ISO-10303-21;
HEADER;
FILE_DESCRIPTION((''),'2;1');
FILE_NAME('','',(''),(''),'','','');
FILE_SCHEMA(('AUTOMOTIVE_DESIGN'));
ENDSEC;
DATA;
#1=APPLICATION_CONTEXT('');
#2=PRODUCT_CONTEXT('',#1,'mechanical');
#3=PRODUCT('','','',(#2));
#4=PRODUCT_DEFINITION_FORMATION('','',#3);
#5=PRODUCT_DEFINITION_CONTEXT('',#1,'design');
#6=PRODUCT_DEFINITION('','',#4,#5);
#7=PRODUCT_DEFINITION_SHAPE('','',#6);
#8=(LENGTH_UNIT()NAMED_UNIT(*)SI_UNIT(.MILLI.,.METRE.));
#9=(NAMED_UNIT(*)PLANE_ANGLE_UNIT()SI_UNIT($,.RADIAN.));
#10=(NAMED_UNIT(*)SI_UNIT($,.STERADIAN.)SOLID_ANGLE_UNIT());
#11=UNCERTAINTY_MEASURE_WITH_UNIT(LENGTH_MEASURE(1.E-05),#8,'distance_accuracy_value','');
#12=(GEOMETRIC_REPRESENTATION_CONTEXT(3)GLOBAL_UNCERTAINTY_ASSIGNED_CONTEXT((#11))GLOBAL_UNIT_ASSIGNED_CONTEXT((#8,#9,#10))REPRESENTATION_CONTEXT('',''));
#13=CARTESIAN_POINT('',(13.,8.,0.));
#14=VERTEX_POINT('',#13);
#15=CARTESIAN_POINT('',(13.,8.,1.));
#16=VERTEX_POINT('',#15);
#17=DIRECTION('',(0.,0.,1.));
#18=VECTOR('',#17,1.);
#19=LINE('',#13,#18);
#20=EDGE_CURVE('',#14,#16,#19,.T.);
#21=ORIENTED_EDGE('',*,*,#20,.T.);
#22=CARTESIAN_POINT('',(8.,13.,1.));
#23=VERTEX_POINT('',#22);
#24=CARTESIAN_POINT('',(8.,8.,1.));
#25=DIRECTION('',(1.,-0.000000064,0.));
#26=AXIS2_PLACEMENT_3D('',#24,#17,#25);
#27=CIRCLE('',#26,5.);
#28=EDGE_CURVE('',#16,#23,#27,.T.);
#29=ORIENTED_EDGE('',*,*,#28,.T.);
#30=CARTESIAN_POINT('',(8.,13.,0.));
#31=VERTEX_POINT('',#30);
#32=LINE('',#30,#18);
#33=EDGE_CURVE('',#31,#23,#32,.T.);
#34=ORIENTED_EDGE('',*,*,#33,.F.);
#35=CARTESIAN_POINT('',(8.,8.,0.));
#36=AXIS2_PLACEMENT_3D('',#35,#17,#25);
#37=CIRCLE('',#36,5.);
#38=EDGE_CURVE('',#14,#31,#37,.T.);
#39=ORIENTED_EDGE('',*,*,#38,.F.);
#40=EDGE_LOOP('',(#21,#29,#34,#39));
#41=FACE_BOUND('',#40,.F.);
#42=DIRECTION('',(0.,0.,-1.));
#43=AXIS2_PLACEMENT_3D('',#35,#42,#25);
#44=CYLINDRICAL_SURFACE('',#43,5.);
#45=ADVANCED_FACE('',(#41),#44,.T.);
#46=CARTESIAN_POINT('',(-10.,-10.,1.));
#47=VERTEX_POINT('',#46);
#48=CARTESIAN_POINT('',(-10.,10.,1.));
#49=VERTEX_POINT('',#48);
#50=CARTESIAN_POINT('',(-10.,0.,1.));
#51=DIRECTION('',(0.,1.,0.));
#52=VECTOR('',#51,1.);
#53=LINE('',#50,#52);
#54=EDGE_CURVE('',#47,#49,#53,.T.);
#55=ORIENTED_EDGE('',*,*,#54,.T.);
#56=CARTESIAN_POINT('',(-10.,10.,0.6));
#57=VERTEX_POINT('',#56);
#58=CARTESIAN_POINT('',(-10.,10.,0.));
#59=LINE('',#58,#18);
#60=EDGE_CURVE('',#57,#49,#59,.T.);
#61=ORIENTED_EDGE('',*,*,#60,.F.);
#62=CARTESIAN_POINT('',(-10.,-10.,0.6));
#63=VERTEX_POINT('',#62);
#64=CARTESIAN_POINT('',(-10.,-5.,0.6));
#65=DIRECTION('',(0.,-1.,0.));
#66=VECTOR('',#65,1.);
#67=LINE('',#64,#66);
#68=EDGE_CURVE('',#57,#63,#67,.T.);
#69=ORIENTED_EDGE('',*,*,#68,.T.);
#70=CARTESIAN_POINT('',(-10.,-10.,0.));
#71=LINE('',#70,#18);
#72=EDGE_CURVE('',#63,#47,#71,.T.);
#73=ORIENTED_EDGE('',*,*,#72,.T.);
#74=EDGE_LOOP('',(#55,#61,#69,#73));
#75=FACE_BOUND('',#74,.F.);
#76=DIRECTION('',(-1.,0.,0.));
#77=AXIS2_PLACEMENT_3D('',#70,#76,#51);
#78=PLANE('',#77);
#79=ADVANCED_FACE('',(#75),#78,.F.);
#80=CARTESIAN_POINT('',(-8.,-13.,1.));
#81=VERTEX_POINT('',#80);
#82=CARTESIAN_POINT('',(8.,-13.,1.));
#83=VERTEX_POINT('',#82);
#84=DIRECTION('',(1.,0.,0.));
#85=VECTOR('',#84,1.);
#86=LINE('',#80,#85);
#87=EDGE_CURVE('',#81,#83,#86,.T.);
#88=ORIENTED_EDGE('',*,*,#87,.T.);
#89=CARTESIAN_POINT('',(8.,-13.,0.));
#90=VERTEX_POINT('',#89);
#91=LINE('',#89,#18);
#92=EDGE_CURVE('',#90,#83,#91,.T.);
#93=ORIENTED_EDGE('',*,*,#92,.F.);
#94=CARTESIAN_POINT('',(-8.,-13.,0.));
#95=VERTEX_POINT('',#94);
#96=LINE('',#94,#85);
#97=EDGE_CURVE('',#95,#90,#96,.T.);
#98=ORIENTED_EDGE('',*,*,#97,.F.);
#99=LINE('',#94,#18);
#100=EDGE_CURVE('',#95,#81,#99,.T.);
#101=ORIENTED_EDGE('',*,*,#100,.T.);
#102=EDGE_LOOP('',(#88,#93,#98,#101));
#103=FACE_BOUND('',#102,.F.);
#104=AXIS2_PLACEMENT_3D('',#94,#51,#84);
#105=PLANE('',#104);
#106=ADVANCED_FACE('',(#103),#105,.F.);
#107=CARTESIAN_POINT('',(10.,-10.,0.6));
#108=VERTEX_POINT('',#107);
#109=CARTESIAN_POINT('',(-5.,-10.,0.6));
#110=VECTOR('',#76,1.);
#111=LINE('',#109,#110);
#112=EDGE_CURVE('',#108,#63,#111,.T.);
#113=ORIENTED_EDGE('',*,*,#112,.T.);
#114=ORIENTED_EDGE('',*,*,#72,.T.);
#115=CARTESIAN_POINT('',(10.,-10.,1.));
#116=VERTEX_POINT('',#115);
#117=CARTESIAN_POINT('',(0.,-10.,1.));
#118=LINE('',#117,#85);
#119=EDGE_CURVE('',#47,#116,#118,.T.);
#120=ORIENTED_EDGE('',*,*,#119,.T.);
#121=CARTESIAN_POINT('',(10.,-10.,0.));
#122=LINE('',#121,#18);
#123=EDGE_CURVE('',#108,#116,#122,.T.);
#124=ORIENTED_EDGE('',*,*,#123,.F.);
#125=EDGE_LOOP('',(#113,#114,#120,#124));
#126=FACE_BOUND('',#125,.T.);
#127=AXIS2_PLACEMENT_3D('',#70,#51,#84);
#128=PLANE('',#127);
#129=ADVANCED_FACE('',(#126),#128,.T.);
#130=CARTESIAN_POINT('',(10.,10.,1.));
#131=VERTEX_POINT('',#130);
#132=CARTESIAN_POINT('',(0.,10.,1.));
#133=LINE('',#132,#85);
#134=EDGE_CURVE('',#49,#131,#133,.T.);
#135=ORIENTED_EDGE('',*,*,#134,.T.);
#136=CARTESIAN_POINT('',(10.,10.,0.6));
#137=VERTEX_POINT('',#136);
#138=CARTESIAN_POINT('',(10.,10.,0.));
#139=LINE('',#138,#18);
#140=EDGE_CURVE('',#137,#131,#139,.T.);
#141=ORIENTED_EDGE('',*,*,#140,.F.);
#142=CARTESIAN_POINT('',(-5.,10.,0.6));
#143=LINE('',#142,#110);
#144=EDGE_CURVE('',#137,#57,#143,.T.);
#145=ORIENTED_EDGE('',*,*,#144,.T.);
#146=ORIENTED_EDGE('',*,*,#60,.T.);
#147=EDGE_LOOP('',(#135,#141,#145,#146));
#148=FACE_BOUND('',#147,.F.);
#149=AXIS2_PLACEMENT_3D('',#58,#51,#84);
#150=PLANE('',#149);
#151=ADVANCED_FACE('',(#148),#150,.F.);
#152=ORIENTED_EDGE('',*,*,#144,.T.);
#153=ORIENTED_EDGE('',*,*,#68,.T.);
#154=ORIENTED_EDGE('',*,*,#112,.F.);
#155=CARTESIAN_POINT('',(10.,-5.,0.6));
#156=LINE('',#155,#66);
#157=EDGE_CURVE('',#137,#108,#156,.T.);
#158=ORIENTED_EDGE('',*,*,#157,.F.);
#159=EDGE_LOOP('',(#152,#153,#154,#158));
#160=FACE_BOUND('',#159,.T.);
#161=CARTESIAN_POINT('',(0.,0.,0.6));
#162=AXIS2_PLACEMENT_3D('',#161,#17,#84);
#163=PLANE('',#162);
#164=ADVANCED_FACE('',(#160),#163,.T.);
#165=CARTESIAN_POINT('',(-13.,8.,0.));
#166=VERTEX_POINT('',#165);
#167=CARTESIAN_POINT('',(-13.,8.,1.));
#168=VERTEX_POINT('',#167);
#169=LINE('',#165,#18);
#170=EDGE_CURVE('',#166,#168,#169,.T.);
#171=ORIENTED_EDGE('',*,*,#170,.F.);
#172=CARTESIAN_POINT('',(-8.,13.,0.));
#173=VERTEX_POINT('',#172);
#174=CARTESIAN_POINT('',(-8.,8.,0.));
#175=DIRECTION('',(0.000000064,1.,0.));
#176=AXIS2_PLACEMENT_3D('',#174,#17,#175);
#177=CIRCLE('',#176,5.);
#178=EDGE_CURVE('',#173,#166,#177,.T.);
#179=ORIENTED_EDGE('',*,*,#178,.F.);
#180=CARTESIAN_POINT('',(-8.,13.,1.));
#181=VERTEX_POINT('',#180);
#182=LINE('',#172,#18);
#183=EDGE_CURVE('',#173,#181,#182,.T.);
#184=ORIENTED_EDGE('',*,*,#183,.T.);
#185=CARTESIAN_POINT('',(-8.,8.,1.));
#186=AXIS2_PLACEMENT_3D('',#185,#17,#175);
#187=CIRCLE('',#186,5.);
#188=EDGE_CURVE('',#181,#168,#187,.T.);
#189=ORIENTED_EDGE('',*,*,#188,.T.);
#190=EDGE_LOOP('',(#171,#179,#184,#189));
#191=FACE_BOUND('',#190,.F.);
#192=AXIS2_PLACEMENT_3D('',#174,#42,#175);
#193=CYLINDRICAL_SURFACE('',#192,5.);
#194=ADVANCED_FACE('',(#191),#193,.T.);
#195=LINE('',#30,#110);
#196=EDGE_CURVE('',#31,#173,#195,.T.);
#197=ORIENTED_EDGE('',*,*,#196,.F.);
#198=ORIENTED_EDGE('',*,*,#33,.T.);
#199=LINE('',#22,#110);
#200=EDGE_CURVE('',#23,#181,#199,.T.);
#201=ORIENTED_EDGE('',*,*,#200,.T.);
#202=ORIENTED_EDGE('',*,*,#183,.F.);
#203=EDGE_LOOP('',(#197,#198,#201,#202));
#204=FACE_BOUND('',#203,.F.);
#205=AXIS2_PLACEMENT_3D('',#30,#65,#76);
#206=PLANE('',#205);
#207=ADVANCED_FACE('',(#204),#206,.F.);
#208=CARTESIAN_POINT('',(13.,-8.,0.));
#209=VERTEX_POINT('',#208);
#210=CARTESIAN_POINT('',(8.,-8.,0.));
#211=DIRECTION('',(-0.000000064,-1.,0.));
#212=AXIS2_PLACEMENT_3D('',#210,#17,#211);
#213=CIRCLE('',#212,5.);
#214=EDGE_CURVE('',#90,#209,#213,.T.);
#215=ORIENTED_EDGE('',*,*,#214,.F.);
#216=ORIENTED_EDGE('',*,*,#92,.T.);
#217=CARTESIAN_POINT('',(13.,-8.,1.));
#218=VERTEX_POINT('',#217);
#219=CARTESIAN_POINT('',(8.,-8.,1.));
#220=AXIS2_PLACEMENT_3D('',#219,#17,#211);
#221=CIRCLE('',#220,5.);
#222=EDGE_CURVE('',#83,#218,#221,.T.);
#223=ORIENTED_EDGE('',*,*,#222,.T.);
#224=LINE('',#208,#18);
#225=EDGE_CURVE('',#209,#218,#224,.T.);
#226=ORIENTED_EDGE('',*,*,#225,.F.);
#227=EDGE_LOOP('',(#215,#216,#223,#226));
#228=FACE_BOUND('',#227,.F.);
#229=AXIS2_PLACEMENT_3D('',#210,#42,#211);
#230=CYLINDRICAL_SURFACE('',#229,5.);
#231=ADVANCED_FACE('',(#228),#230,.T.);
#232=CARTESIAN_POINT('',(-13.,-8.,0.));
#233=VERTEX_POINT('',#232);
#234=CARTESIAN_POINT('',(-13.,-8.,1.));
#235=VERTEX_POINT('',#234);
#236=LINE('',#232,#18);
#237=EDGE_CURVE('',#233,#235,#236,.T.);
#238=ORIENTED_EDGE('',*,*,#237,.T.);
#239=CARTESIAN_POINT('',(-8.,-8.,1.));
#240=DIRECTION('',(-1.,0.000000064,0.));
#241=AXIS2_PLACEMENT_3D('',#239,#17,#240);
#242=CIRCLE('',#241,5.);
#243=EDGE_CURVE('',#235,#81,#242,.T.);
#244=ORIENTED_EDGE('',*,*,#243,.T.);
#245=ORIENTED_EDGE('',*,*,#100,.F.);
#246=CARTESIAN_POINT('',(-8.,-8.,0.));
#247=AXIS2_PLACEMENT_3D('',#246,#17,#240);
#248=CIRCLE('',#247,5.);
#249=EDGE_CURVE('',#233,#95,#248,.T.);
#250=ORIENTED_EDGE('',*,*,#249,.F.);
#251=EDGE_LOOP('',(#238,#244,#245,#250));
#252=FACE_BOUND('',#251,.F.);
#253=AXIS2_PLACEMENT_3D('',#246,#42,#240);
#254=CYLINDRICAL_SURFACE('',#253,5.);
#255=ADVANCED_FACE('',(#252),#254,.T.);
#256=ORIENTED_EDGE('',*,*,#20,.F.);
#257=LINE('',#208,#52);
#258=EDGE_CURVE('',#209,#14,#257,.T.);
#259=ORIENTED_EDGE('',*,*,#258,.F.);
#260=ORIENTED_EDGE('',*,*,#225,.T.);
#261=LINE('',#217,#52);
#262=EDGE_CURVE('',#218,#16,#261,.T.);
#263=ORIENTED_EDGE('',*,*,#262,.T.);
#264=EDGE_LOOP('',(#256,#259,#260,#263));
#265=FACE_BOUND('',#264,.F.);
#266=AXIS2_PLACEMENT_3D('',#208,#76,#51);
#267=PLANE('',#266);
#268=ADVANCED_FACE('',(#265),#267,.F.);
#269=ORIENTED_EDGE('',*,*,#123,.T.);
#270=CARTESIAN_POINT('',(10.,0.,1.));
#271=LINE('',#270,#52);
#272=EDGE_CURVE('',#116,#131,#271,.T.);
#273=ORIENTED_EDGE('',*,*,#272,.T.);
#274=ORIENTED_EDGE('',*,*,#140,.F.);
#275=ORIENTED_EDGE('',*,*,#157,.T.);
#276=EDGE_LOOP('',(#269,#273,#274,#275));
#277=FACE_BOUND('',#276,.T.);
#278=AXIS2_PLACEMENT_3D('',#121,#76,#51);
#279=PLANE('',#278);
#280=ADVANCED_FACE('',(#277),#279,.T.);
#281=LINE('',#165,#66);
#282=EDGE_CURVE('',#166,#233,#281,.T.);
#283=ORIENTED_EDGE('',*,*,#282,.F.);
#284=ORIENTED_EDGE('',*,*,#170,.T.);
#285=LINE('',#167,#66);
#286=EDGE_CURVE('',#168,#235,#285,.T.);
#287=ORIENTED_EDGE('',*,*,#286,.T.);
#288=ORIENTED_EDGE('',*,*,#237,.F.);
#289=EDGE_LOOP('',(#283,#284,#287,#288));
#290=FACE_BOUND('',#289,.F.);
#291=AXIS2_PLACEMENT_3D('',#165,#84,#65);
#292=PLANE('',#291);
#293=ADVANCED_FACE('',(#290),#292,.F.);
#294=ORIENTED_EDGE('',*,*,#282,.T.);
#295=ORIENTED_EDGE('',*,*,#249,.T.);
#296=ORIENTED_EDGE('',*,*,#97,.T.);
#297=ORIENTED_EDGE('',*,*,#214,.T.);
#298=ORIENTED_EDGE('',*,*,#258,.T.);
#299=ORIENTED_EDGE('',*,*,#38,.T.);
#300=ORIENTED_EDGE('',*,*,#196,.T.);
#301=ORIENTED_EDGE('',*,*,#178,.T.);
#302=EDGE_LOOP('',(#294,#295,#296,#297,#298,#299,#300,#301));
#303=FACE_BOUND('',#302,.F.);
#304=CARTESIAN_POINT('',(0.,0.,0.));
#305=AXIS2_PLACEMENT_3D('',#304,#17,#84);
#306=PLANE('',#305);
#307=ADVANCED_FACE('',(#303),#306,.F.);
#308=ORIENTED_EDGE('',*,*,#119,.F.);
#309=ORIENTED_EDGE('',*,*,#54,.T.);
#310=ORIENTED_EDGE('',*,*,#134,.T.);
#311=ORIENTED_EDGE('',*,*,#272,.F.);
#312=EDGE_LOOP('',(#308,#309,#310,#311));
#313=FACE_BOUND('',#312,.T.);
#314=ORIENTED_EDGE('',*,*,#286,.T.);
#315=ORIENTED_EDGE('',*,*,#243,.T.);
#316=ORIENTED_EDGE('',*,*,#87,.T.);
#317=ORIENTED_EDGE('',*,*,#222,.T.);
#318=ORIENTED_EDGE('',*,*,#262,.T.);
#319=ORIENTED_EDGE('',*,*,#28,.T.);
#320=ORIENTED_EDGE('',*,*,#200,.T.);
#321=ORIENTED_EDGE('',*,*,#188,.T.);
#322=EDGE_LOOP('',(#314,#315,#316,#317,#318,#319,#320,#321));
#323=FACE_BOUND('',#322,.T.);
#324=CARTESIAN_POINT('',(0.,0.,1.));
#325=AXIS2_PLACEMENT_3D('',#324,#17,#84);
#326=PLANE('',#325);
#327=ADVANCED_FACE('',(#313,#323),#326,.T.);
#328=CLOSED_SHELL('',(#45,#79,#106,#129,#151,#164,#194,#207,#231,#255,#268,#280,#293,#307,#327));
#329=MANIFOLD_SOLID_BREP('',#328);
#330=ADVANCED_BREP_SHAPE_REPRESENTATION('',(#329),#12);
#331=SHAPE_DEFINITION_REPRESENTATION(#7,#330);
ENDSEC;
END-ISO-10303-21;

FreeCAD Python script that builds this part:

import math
import FreeCAD as App
import Part
import Sketcher


def add_polygon(sketch, points):
    """Adds a closed chain of lines whose ends are joined by coincident constraints."""
    first, n = sketch.GeometryCount, len(points)
    for a, b in zip(points, points[1:] + points[:1]):
        sketch.addGeometry(Part.LineSegment(App.Vector(*a, 0), App.Vector(*b, 0)), False)
    for i in range(n):
        sketch.addConstraint(Sketcher.Constraint("Coincident", first + i, 2, first + (i + 1) % n, 1))

doc = App.newDocument("Part")
body = doc.addObject("PartDesign::Body", "Body")

# Sketch on XY plane
sketch1 = doc.addObject("Sketcher::SketchObject", "Sketch")
body.addObject(sketch1)
sketch1.AttachmentSupport = (doc.XY_Plane, [""])
sketch1.MapMode = "FlatFace"
add_polygon(sketch1, [(-11, 11), (-11, -11), (11, -11), (11, 11)])  # lines 0-3
sketch1.addConstraint([
    Sketcher.Constraint("Vertical", 0),
    Sketcher.Constraint("Horizontal", 1),
    Sketcher.Constraint("Vertical", 2),
    Sketcher.Constraint("Horizontal", 3),
    Sketcher.Constraint("Symmetric", 0, 2, 2, 2, -1, 1),
    Sketcher.Constraint("Equal", 3, 0),
    Sketcher.Constraint("DistanceX", 1, 1, 1, 2, 22.0),
])
pad1 = doc.addObject("PartDesign::Pad", "Pad")
body.addObject(pad1)
pad1.Profile = sketch1
pad1.Length = 0.6

# Sketch on XY plane
sketch2 = doc.addObject("Sketcher::SketchObject", "Sketch001")
body.addObject(sketch2)
sketch2.AttachmentSupport = (doc.XY_Plane, [""])
sketch2.MapMode = "FlatFace"
sketch2.addGeometry(Part.ArcOfCircle(Part.Circle(App.Vector(8, 8, 0), App.Vector(0, 0, 1), 5), math.radians(-0.000004), math.radians(90.000004)), False)  # 0
sketch2.addGeometry(Part.LineSegment(App.Vector(8, 13, 0), App.Vector(-8, 13, 0)), False)  # 1
sketch2.addGeometry(Part.ArcOfCircle(Part.Circle(App.Vector(-8, 8, 0), App.Vector(0, 0, 1), 5), math.radians(89.999996), math.radians(180.000004)), False)  # 2
sketch2.addGeometry(Part.LineSegment(App.Vector(-13, 8, 0), App.Vector(-13, -8, 0)), False)  # 3
sketch2.addGeometry(Part.ArcOfCircle(Part.Circle(App.Vector(-8, -8, 0), App.Vector(0, 0, 1), 5), math.radians(179.999996), math.radians(270.000004)), False)  # 4
sketch2.addGeometry(Part.LineSegment(App.Vector(-8, -13, 0), App.Vector(8, -13, 0)), False)  # 5
sketch2.addGeometry(Part.ArcOfCircle(Part.Circle(App.Vector(8, -8, 0), App.Vector(0, 0, 1), 5), math.radians(-90.000004), math.radians(0.000004)), False)  # 6
sketch2.addGeometry(Part.LineSegment(App.Vector(13, -8, 0), App.Vector(13, 8, 0)), False)  # 7
add_polygon(sketch2, [(10, -10), (-10, -10), (-10, 10), (10, 10)])  # lines 8-11
sketch2.addConstraint([
    Sketcher.Constraint("Tangent", 0, 2, 1, 1),
    Sketcher.Constraint("Tangent", 1, 2, 2, 1),
    Sketcher.Constraint("Tangent", 2, 2, 3, 1),
    Sketcher.Constraint("Tangent", 3, 2, 4, 1),
    Sketcher.Constraint("Tangent", 4, 2, 5, 1),
    Sketcher.Constraint("Tangent", 5, 2, 6, 1),
    Sketcher.Constraint("Tangent", 6, 2, 7, 1),
    Sketcher.Constraint("Tangent", 7, 2, 0, 1),
    Sketcher.Constraint("Horizontal", 1),
    Sketcher.Constraint("Vertical", 3),
    Sketcher.Constraint("Horizontal", 5),
    Sketcher.Constraint("Vertical", 7),
    Sketcher.Constraint("Horizontal", 8),
    Sketcher.Constraint("Vertical", 9),
    Sketcher.Constraint("Horizontal", 10),
    Sketcher.Constraint("Vertical", 11),
    Sketcher.Constraint("Equal", 0, 2),
    Sketcher.Constraint("Equal", 2, 4),
    Sketcher.Constraint("Equal", 4, 6),
    Sketcher.Constraint("Symmetric", 0, 3, 4, 3, -1, 1),
    Sketcher.Constraint("Symmetric", 8, 2, 10, 2, -1, 1),
    Sketcher.Constraint("Equal", 5, 3),
    Sketcher.Constraint("Equal", 10, 9),
    Sketcher.Constraint("Radius", 0, 5.0),
    Sketcher.Constraint("DistanceX", 1, 2, 1, 1, 16.0),
    Sketcher.Constraint("DistanceX", 8, 2, 8, 1, 20.0),
])
pad2 = doc.addObject("PartDesign::Pad", "Pad001")
body.addObject(pad2)
pad2.Profile = sketch2
pad2.Length = 1

doc.recompute()
